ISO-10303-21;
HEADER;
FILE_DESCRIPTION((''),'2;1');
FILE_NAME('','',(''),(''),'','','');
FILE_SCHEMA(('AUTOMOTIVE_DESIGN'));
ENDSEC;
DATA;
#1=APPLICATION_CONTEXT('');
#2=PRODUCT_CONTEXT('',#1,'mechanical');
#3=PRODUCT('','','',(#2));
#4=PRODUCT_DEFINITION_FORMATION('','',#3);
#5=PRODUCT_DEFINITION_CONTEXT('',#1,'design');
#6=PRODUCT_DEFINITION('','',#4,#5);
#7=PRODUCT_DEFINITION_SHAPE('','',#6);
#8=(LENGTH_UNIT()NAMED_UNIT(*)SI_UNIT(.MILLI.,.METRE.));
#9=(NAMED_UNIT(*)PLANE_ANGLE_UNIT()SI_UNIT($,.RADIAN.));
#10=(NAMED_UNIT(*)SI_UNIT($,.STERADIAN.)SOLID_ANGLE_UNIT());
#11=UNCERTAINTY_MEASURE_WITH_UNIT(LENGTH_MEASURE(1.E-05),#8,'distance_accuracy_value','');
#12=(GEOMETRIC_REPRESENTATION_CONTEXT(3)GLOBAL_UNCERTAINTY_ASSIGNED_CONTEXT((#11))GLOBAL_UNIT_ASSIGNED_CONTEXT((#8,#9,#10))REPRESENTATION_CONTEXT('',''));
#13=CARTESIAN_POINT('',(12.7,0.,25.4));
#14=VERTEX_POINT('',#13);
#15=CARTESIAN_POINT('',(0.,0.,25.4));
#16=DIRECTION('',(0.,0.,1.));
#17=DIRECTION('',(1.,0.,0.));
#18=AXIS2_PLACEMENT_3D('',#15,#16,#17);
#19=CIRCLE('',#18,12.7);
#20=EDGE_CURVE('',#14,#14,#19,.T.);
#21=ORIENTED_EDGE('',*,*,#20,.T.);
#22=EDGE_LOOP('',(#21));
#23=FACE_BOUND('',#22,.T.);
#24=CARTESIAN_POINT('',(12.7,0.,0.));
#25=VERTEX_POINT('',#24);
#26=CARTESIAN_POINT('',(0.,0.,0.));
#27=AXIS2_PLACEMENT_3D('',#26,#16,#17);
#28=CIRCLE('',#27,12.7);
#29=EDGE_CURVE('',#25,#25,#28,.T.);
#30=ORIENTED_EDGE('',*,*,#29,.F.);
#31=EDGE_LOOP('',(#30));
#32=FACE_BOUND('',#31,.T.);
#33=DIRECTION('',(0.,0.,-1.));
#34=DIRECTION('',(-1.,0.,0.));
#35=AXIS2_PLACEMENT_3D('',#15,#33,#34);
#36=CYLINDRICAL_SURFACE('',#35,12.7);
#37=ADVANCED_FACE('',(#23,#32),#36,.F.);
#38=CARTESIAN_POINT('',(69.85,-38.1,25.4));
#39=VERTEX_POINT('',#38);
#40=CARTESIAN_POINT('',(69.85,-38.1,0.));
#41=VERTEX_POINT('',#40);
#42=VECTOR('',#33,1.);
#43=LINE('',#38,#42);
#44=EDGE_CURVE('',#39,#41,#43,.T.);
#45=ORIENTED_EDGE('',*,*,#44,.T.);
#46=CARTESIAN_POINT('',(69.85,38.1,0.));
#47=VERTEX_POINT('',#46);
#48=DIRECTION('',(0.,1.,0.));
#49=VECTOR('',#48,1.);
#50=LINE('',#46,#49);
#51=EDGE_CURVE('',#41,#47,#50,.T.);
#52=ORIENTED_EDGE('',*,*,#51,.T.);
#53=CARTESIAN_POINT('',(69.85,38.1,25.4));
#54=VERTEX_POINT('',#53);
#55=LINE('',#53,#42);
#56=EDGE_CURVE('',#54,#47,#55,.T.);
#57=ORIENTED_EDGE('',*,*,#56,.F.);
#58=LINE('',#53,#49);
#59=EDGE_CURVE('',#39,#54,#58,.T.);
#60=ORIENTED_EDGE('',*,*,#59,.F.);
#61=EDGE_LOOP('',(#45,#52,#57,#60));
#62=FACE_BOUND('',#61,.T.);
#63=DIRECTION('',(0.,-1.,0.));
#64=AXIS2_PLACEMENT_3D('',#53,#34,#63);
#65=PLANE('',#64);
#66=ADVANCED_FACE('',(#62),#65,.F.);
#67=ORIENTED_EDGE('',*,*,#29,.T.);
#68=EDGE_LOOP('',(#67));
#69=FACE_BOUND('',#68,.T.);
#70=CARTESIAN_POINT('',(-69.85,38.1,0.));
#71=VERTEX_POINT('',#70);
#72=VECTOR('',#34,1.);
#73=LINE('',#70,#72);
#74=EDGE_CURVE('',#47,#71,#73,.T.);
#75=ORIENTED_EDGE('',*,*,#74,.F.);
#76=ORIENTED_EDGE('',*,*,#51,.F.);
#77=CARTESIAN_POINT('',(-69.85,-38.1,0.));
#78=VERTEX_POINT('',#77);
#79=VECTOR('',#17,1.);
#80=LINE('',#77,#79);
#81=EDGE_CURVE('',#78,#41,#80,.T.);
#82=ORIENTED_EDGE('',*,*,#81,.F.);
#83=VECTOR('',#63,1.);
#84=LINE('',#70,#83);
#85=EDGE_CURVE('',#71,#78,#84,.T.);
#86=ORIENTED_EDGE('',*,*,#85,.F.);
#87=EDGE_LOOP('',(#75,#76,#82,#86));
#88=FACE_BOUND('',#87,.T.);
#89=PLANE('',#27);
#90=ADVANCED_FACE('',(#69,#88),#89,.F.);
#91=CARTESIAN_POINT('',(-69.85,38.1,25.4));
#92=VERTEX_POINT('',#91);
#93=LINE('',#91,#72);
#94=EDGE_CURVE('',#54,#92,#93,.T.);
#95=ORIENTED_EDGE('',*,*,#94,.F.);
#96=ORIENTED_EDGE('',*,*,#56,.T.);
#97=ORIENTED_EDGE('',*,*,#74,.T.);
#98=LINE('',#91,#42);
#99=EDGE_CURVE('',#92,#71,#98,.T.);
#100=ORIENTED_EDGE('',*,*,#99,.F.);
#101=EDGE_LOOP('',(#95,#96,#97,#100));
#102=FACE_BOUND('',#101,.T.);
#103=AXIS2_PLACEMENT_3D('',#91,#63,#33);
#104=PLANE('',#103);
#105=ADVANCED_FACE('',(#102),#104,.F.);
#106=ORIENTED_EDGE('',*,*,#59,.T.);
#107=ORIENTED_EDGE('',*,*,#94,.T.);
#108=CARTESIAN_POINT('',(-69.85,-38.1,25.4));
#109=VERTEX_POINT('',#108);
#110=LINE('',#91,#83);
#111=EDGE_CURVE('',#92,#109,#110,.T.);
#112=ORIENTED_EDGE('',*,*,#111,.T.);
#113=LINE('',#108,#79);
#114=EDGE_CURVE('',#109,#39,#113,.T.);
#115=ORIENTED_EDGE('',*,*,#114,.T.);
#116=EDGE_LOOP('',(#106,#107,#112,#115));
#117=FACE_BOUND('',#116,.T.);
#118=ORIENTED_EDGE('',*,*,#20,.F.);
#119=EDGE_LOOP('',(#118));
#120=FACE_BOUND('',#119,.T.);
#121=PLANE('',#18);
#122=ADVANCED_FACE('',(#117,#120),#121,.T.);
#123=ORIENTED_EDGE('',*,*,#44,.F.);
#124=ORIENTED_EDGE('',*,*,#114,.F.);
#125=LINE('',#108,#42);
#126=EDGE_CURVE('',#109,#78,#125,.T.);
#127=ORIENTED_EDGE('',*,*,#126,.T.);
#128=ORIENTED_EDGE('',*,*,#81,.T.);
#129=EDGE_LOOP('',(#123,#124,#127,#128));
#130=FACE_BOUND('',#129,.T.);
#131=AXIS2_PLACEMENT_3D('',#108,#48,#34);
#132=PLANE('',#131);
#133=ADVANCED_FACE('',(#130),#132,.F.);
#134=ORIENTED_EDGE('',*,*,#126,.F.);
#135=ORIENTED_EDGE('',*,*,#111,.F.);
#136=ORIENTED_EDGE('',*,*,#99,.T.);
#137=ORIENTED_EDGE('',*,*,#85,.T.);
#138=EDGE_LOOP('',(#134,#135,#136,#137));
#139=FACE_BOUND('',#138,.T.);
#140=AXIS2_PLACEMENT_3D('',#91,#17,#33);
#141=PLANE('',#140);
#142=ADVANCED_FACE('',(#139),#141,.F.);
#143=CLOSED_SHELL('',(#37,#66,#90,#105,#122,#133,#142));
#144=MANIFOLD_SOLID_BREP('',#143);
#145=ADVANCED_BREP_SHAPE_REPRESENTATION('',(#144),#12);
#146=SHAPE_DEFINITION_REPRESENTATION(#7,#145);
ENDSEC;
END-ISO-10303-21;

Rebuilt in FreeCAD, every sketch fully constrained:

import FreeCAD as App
import Part
import Sketcher
from FreeCAD import Vector
Q = App.Units.Quantity


def add_polygon(sketch, points):
    """Adds a closed chain of lines whose ends are joined by coincident constraints."""
    first, n = sketch.GeometryCount, len(points)
    for a, b in zip(points, points[1:] + points[:1]):
        sketch.addGeometry(Part.LineSegment(App.Vector(*a, 0), App.Vector(*b, 0)), False)
    for i in range(n):
        sketch.addConstraint(Sketcher.Constraint("Coincident", first + i, 2, first + (i + 1) % n, 1))

doc = App.newDocument("Part")
body = doc.addObject("PartDesign::Body", "Body")

# Sketch on XY plane
sketch1 = doc.addObject("Sketcher::SketchObject", "Sketch")
body.addObject(sketch1)
sketch1.AttachmentSupport = (doc.XY_Plane, [""])
sketch1.MapMode = "FlatFace"
add_polygon(sketch1, [(-69.85, 38.1), (-69.85, -38.1), (69.85, -38.1), (69.85, 38.1)])  # lines 0-3
sketch1.addGeometry(Part.Circle(Vector(0, 0, 0), Vector(0, 0, 1), 12.7), False)  # 4
sketch1.addConstraint(Sketcher.Constraint("Vertical", 0))
sketch1.addConstraint(Sketcher.Constraint("Horizontal", 1))
sketch1.addConstraint(Sketcher.Constraint("Vertical", 2))
sketch1.addConstraint(Sketcher.Constraint("Horizontal", 3))
sketch1.addConstraint(Sketcher.Constraint("Coincident", 4, 3, -1, 1))
sketch1.addConstraint(Sketcher.Constraint("Symmetric", 0, 2, 2, 2, -1, 1))
sketch1.addConstraint(Sketcher.Constraint("Diameter", 4, Q("1 in")))
sketch1.addConstraint(Sketcher.Constraint("DistanceY", 0, 2, 0, 1, Q("3 in")))
sketch1.addConstraint(Sketcher.Constraint("DistanceX", 1, 1, 1, 2, Q("5.5 in")))
pad1 = doc.addObject("PartDesign::Pad", "Pad")
body.addObject(pad1)
pad1.Profile = sketch1
pad1.Length = Q("1 in")

doc.recompute()
